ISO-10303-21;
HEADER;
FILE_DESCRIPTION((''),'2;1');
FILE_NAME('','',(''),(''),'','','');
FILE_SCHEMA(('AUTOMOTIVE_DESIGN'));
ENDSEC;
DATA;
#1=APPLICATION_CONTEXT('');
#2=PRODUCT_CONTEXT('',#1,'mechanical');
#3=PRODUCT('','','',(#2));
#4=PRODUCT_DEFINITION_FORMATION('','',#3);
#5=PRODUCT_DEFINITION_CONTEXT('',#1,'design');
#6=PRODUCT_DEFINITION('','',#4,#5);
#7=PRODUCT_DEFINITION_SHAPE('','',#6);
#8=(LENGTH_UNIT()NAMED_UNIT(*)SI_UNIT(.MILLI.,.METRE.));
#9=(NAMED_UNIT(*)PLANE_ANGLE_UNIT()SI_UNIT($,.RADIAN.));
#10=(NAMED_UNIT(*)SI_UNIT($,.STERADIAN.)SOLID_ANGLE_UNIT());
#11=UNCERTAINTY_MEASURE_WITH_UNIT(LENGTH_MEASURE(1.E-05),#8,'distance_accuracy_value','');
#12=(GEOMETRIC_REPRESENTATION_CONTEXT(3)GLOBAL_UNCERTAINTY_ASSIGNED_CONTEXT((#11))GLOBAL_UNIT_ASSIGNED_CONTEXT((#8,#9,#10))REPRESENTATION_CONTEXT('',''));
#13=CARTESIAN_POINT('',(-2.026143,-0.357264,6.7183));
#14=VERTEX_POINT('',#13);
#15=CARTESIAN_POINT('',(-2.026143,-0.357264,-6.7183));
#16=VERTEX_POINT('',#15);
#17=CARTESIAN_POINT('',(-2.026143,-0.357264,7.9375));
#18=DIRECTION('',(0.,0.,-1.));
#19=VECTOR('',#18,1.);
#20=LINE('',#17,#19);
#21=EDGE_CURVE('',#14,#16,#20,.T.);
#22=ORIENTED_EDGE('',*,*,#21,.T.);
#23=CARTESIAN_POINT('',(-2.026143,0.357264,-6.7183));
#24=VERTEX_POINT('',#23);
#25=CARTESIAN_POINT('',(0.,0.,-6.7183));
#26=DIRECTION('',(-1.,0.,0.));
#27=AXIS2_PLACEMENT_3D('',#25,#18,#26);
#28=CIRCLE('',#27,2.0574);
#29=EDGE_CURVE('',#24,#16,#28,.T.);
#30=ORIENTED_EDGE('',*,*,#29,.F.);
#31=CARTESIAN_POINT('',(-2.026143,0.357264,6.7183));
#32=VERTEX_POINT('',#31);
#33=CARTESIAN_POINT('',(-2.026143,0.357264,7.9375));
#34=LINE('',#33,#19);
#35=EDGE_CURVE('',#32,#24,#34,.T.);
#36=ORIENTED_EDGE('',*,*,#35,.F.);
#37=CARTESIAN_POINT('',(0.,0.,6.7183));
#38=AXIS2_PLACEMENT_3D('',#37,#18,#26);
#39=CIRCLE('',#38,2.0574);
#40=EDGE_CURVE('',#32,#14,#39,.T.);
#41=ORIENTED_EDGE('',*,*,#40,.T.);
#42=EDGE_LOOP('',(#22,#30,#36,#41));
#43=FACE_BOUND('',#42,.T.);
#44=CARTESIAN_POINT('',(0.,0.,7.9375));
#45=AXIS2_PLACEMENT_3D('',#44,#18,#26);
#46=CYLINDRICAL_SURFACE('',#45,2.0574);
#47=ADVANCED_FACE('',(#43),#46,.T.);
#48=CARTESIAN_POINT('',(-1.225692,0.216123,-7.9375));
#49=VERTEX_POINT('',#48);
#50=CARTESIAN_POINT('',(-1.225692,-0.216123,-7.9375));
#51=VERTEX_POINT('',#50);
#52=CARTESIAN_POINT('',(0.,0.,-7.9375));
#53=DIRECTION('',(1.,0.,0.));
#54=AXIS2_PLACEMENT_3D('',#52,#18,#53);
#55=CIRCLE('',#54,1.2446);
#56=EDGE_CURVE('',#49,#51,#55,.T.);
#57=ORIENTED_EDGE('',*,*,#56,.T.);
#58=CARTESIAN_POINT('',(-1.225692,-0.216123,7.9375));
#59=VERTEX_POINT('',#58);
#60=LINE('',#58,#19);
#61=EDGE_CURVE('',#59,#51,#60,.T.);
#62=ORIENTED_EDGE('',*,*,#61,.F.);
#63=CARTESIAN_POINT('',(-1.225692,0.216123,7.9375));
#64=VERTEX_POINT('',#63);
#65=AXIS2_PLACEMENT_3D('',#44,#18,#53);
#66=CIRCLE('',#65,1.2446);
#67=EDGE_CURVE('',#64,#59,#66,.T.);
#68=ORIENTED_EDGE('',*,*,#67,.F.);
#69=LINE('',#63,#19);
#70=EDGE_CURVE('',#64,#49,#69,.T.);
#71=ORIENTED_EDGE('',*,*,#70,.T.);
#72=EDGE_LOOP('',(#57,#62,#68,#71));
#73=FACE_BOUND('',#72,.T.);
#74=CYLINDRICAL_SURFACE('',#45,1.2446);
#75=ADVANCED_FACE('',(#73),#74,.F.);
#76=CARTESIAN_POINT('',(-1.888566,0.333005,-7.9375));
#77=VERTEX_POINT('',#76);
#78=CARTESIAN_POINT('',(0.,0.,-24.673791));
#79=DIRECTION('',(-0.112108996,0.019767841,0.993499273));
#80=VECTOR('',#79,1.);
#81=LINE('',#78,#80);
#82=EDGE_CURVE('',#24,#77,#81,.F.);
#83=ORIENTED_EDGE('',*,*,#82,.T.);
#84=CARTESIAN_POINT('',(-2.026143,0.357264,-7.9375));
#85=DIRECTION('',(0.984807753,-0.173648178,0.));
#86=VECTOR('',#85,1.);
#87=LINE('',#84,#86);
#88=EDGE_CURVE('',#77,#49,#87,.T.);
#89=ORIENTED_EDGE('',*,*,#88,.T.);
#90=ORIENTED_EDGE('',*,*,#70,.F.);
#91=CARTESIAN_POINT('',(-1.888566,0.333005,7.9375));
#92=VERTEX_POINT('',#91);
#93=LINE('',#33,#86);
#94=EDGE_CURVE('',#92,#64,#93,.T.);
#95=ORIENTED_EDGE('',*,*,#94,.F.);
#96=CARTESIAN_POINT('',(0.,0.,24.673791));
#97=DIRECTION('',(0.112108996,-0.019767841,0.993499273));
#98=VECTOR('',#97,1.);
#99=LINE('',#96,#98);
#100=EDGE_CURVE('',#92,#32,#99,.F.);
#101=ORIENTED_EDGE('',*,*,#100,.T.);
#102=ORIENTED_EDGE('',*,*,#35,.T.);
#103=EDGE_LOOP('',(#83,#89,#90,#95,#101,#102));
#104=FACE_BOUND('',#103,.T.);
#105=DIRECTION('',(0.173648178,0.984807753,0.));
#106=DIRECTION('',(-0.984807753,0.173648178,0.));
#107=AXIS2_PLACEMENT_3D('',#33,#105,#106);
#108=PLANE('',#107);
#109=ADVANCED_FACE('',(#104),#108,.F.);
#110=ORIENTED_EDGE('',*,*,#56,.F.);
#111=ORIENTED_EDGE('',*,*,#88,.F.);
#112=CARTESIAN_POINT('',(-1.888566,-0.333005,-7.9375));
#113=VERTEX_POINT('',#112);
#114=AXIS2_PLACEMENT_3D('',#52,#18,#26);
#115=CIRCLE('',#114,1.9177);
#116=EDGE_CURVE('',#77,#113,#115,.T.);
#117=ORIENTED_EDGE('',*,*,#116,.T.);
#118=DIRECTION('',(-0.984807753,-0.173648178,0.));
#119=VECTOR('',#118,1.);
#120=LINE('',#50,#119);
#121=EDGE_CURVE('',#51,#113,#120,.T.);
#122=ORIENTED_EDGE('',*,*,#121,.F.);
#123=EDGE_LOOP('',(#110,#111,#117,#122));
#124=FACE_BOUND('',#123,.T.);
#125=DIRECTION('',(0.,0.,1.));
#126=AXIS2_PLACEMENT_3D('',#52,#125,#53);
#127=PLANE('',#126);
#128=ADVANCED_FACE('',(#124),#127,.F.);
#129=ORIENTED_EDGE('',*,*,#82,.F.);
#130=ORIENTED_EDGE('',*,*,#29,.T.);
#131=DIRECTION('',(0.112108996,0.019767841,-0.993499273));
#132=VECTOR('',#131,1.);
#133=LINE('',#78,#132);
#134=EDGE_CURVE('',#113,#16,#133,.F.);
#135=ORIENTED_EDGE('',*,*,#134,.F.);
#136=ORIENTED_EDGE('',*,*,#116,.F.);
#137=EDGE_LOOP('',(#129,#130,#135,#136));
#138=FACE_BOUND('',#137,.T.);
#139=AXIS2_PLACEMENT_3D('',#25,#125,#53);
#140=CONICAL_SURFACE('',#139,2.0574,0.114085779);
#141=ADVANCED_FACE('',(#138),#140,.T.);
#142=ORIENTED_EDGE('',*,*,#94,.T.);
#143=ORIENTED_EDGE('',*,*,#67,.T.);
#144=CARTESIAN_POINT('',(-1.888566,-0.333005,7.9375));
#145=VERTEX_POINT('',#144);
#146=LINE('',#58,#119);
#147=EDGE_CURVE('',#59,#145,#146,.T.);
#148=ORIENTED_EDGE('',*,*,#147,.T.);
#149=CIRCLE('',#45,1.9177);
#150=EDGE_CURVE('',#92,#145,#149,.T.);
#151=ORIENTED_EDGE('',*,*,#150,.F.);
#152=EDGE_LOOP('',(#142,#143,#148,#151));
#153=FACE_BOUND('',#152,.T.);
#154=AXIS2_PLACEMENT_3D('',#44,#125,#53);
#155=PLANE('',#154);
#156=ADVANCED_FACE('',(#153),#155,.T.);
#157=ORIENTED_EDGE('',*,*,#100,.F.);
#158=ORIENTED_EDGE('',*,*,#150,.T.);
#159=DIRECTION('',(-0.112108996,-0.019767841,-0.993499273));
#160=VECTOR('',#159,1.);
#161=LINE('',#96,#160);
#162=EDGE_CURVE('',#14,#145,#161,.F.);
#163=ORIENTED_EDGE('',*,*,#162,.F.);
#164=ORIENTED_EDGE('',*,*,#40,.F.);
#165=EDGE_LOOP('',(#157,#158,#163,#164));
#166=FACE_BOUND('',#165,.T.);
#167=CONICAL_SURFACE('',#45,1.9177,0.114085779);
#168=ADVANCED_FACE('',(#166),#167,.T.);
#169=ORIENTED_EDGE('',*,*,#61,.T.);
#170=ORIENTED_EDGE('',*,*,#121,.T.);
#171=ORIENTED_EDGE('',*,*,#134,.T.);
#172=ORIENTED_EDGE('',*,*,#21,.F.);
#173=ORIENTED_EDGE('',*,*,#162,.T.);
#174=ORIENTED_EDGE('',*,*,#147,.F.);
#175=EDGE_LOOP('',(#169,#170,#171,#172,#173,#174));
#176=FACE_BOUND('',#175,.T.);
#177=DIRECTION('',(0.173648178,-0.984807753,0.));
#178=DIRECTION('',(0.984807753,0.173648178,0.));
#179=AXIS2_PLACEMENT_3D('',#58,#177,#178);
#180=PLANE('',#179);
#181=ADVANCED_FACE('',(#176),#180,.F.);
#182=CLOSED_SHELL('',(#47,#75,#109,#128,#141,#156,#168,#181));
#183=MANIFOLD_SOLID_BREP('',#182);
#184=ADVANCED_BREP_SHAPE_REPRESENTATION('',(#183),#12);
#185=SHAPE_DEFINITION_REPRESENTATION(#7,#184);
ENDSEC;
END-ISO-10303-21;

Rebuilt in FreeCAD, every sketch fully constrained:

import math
import FreeCAD as App
import Part
import Sketcher
Q = App.Units.Quantity


def add_polygon(sketch, points):
    """Adds a closed chain of lines whose ends are joined by coincident constraints."""
    first, n = sketch.GeometryCount, len(points)
    for a, b in zip(points, points[1:] + points[:1]):
        sketch.addGeometry(Part.LineSegment(App.Vector(*a, 0), App.Vector(*b, 0)), False)
    for i in range(n):
        sketch.addConstraint(Sketcher.Constraint("Coincident", first + i, 2, first + (i + 1) % n, 1))

doc = App.newDocument("Part")
body = doc.addObject("PartDesign::Body", "Body")

# Sketch on XY plane
sketch1 = body.newObject("Sketcher::SketchObject", "Sketch")
sketch1.AttachmentSupport = (doc.getObject("XY_Plane"), [""])
sketch1.MapMode = "FlatFace"
sketch1.addGeometry([
    Part.LineSegment(App.Vector(-2.03, 0.36, 0), App.Vector(-1.23, 0.22, 0)),
    Part.ArcOfCircle(Part.Circle(App.Vector(0, 0, 0), App.Vector(0, 0, 1), 1.24), math.radians(-170), math.radians(170)),
    Part.LineSegment(App.Vector(-1.23, -0.22, 0), App.Vector(-2.03, -0.36, 0)),
    Part.ArcOfCircle(Part.Circle(App.Vector(0, 0, 0), App.Vector(0, 0, 1), 2.06), math.radians(-170), math.radians(170)),
], False)
sketch1.addConstraint([
    Sketcher.Constraint("Coincident", 0, 2, 1, 2),
    Sketcher.Constraint("Coincident", 1, 1, 2, 1),
    Sketcher.Constraint("Coincident", 2, 2, 3, 1),
    Sketcher.Constraint("Coincident", 3, 2, 0, 1),
    Sketcher.Constraint("Coincident", 1, 3, -1, 1),
    Sketcher.Constraint("Coincident", 3, 3, -1, 1),
    Sketcher.Constraint("Vertical", 0, 2, 1, 1),
    Sketcher.Constraint("Vertical", 2, 2, 3, 2),
    Sketcher.Constraint("Angle", 0, Q("-10 deg")),
    Sketcher.Constraint("Radius", 1, Q("0.049 in")),
    Sketcher.Constraint("Radius", 3, Q("0.081 in")),
    Sketcher.Constraint("DistanceX", 0, 2, -1, 1, 1.225692),
])
pad1 = body.newObject("PartDesign::Pad", "Pad")
pad1.Profile = sketch1
pad1.Length = Q("0.625 in")
pad1.Midplane = True

# Sketch on YZ plane
sketch2 = body.newObject("Sketcher::SketchObject", "Sketch001")
sketch2.AttachmentSupport = (doc.getObject("YZ_Plane"), [""])
sketch2.MapMode = "FlatFace"
add_polygon(sketch2, [(1.92, -7.94), (2.06, -7.94), (2.06, -6.72)])  # lines 0-2
add_polygon(sketch2, [(2.06, 6.72), (2.06, 7.94), (1.92, 7.94)])  # lines 3-5
sketch2.addConstraint([
    Sketcher.Constraint("Horizontal", 0),
    Sketcher.Constraint("Vertical", 1),
    Sketcher.Constraint("Vertical", 3),
    Sketcher.Constraint("Horizontal", 4),
    Sketcher.Constraint("Symmetric", 0, 2, 3, 2, -1),
    Sketcher.Constraint("Vertical", 2, 2, 4, 2),
    Sketcher.Constraint("Equal", 1, 3),
    Sketcher.Constraint("DistanceY", 1, 1, 1, 2, Q("0.048 in")),
    Sketcher.Constraint("DistanceX", 0, 1, 0, 2, Q("0.0055 in")),
    Sketcher.Constraint("DistanceX", -1, 1, 0, 2, Q("0.081 in")),
    Sketcher.Constraint("DistanceY", 0, 2, -1, 1, Q("0.3125 in")),
])
groove = body.newObject("PartDesign::Groove", "Groove")
groove.Profile = sketch2
groove.ReferenceAxis = (sketch2, ["V_Axis"])
groove.Angle = 360

doc.recompute()
